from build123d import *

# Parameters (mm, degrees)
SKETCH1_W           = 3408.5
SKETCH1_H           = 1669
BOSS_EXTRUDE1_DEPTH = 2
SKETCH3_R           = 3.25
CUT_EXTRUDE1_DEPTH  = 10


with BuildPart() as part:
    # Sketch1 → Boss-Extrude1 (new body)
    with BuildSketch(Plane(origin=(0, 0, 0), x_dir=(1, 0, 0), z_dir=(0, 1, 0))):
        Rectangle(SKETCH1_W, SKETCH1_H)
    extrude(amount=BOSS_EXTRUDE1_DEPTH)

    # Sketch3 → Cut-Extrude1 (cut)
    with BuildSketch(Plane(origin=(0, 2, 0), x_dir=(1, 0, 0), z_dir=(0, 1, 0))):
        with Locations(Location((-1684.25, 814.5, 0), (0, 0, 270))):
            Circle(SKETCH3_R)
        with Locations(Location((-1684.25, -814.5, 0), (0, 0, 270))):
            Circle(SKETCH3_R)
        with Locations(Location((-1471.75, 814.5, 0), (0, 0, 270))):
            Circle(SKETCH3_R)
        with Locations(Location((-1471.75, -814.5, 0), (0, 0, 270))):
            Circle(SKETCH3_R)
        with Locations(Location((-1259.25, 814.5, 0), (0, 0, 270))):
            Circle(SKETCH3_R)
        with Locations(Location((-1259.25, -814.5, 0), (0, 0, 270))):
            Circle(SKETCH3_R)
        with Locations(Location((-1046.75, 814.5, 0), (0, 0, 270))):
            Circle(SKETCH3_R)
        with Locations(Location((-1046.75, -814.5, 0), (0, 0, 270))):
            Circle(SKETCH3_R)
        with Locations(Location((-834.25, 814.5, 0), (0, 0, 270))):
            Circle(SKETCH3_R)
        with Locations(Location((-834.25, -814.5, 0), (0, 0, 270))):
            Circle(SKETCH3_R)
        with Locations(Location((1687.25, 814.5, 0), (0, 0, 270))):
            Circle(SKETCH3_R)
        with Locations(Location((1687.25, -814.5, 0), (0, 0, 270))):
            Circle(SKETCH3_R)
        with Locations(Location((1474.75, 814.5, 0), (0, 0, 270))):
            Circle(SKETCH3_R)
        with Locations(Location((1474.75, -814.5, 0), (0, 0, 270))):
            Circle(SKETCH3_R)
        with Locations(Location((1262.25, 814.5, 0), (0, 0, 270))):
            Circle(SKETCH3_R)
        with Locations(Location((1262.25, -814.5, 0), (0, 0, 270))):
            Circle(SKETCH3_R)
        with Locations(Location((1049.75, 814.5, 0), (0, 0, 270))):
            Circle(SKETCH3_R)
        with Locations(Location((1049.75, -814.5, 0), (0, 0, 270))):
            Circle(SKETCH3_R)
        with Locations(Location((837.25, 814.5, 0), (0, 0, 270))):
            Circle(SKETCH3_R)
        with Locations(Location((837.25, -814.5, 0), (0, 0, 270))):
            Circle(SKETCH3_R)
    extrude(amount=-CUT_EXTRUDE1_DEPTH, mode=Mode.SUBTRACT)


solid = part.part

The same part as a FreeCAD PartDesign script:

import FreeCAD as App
import Part
import Sketcher

V = App.Vector
Q = App.Units.Quantity


def add_polygon(sketch, points):
    """Adds a closed chain of lines whose ends are joined by coincident constraints."""
    first, n = sketch.GeometryCount, len(points)
    for a, b in zip(points, points[1:] + points[:1]):
        sketch.addGeometry(Part.LineSegment(App.Vector(*a, 0), App.Vector(*b, 0)), False)
    for i in range(n):
        sketch.addConstraint(Sketcher.Constraint("Coincident", first + i, 2, first + (i + 1) % n, 1))

doc = App.newDocument("Part")
params = doc.addObject("Spreadsheet::Sheet", "Params")
for row, (alias, value) in enumerate([
    ("sketch1_height", "1669 mm"),
    ("sketch1_width", "3408.5 mm"),
    ("pad1_length", "2 mm"),
    ("sketch2_diameter", "6.5 mm"),
    ("pocket1_length", "10 mm"),
], start=1):
    params.set(f"A{row}", alias)
    params.set(f"B{row}", "=" + value)
    params.setAlias(f"B{row}", alias)

body = doc.addObject("PartDesign::Body", "Body")

sketch1 = doc.addObject("Sketcher::SketchObject", "Sketch")
body.addObject(sketch1)
sketch1.AttachmentSupport = (doc.XZ_Plane, [""])
sketch1.MapMode = "FlatFace"
add_polygon(sketch1, [(-1704.25, -834.5), (-1704.25, 834.5), (1704.25, 834.5), (1704.25, -834.5)])
sketch1.addConstraint(Sketcher.Constraint("Vertical", 0))
sketch1.addConstraint(Sketcher.Constraint("Horizontal", 1))
sketch1.addConstraint(Sketcher.Constraint("Vertical", 2))
sketch1.addConstraint(Sketcher.Constraint("Horizontal", 3))
sketch1.addConstraint(Sketcher.Constraint("Symmetric", 0, 2, 2, 2, -1, 1))
sketch1.addConstraint(Sketcher.Constraint("DistanceY", 0, 1, 0, 2, Q("1669 mm")))
sketch1.addConstraint(Sketcher.Constraint("DistanceX", 1, 1, 1, 2, Q("3408.5 mm")))
sketch1.setExpression("Constraints[9]", "Params.sketch1_height")
sketch1.setExpression("Constraints[10]", "Params.sketch1_width")
pad1 = doc.addObject("PartDesign::Pad", "Pad")
body.addObject(pad1)
pad1.Profile = sketch1
pad1.setExpression("Length", "Params.pad1_length")
pad1.Reversed = True

sketch2 = doc.addObject("Sketcher::SketchObject", "Sketch001")
body.addObject(sketch2)
sketch2.AttachmentSupport = (doc.XZ_Plane, [""])
sketch2.MapMode = "FlatFace"
sketch2.AttachmentOffset = App.Placement(V(0, 0, -2), App.Rotation())
sketch2.addGeometry(Part.Circle(V(-1684.25, -814.5, 0), V(0, 0, 1), 3.25), False)
sketch2.addGeometry(Part.Circle(V(-1684.25, 814.5, 0), V(0, 0, 1), 3.25), False)
sketch2.addGeometry(Part.Circle(V(-1471.75, -814.5, 0), V(0, 0, 1), 3.25), False)
sketch2.addGeometry(Part.Circle(V(-1471.75, 814.5, 0), V(0, 0, 1), 3.25), False)
sketch2.addGeometry(Part.Circle(V(-1259.25, -814.5, 0), V(0, 0, 1), 3.25), False)
sketch2.addGeometry(Part.Circle(V(-1259.25, 814.5, 0), V(0, 0, 1), 3.25), False)
sketch2.addGeometry(Part.Circle(V(-1046.75, -814.5, 0), V(0, 0, 1), 3.25), False)
sketch2.addGeometry(Part.Circle(V(-1046.75, 814.5, 0), V(0, 0, 1), 3.25), False)
sketch2.addGeometry(Part.Circle(V(-834.25, -814.5, 0), V(0, 0, 1), 3.25), False)
sketch2.addGeometry(Part.Circle(V(-834.25, 814.5, 0), V(0, 0, 1), 3.25), False)
sketch2.addGeometry(Part.Circle(V(1687.25, -814.5, 0), V(0, 0, 1), 3.25), False)
sketch2.addGeometry(Part.Circle(V(1687.25, 814.5, 0), V(0, 0, 1), 3.25), False)
sketch2.addGeometry(Part.Circle(V(1474.75, -814.5, 0), V(0, 0, 1), 3.25), False)
sketch2.addGeometry(Part.Circle(V(1474.75, 814.5, 0), V(0, 0, 1), 3.25), False)
sketch2.addGeometry(Part.Circle(V(1262.25, -814.5, 0), V(0, 0, 1), 3.25), False)
sketch2.addGeometry(Part.Circle(V(1262.25, 814.5, 0), V(0, 0, 1), 3.25), False)
sketch2.addGeometry(Part.Circle(V(1049.75, -814.5, 0), V(0, 0, 1), 3.25), False)
sketch2.addGeometry(Part.Circle(V(1049.75, 814.5, 0), V(0, 0, 1), 3.25), False)
sketch2.addGeometry(Part.Circle(V(837.25, -814.5, 0), V(0, 0, 1), 3.25), False)
sketch2.addGeometry(Part.Circle(V(837.25, 814.5, 0), V(0, 0, 1), 3.25), False)
sketch2.addConstraint(Sketcher.Constraint("Equal", 0, 1))
sketch2.addConstraint(Sketcher.Constraint("Equal", 1, 2))
sketch2.addConstraint(Sketcher.Constraint("Equal", 2, 3))
sketch2.addConstraint(Sketcher.Constraint("Equal", 3, 4))
sketch2.addConstraint(Sketcher.Constraint("Equal", 4, 5))
sketch2.addConstraint(Sketcher.Constraint("Equal", 5, 6))
sketch2.addConstraint(Sketcher.Constraint("Equal", 6, 7))
sketch2.addConstraint(Sketcher.Constraint("Equal", 7, 8))
sketch2.addConstraint(Sketcher.Constraint("Equal", 8, 9))
sketch2.addConstraint(Sketcher.Constraint("Equal", 9, 10))
sketch2.addConstraint(Sketcher.Constraint("Equal", 10, 11))
sketch2.addConstraint(Sketcher.Constraint("Equal", 11, 12))
sketch2.addConstraint(Sketcher.Constraint("Equal", 12, 13))
sketch2.addConstraint(Sketcher.Constraint("Equal", 13, 14))
sketch2.addConstraint(Sketcher.Constraint("Equal", 14, 15))
sketch2.addConstraint(Sketcher.Constraint("Equal", 15, 16))
sketch2.addConstraint(Sketcher.Constraint("Equal", 16, 17))
sketch2.addConstraint(Sketcher.Constraint("Equal", 17, 18))
sketch2.addConstraint(Sketcher.Constraint("Equal", 18, 19))
sketch2.addConstraint(Sketcher.Constraint("Symmetric", 0, 3, 1, 3, -1))
sketch2.addConstraint(Sketcher.Constraint("Symmetric", 2, 3, 3, 3, -1))
sketch2.addConstraint(Sketcher.Constraint("Symmetric", 4, 3, 5, 3, -1))
sketch2.addConstraint(Sketcher.Constraint("Symmetric", 6, 3, 7, 3, -1))
sketch2.addConstraint(Sketcher.Constraint("Symmetric", 8, 3, 9, 3, -1))
sketch2.addConstraint(Sketcher.Constraint("Symmetric", 10, 3, 11, 3, -1))
sketch2.addConstraint(Sketcher.Constraint("Symmetric", 12, 3, 13, 3, -1))
sketch2.addConstraint(Sketcher.Constraint("Symmetric", 14, 3, 15, 3, -1))
sketch2.addConstraint(Sketcher.Constraint("Symmetric", 16, 3, 17, 3, -1))
sketch2.addConstraint(Sketcher.Constraint("Symmetric", 18, 3, 19, 3, -1))
sketch2.addConstraint(Sketcher.Constraint("Horizontal", 0, 3, 2, 3))
sketch2.addConstraint(Sketcher.Constraint("Horizontal", 2, 3, 4, 3))
sketch2.addConstraint(Sketcher.Constraint("Horizontal", 4, 3, 6, 3))
sketch2.addConstraint(Sketcher.Constraint("Horizontal", 6, 3, 8, 3))
sketch2.addConstraint(Sketcher.Constraint("Horizontal", 8, 3, 10, 3))
sketch2.addConstraint(Sketcher.Constraint("Horizontal", 10, 3, 12, 3))
sketch2.addConstraint(Sketcher.Constraint("Horizontal", 12, 3, 14, 3))
sketch2.addConstraint(Sketcher.Constraint("Horizontal", 14, 3, 16, 3))
sketch2.addConstraint(Sketcher.Constraint("Horizontal", 16, 3, 18, 3))
sketch2.addConstraint(Sketcher.Constraint("Diameter", 0, Q("6.5 mm")))
sketch2.addConstraint(Sketcher.Constraint("DistanceY", 0, 3, 1, 3, Q("1629 mm")))
sketch2.addConstraint(Sketcher.Constraint("DistanceX", 0, 3, 4, 3, Q("425 mm")))
sketch2.addConstraint(Sketcher.Constraint("DistanceX", 2, 3, 6, 3, Q("425 mm")))
sketch2.addConstraint(Sketcher.Constraint("DistanceX", 4, 3, 8, 3, Q("425 mm")))
sketch2.addConstraint(Sketcher.Constraint("DistanceX", 6, 3, 10, 3, Q("2734 mm")))
sketch2.addConstraint(Sketcher.Constraint("DistanceX", 8, 3, 12, 3, Q("2309 mm")))
sketch2.addConstraint(Sketcher.Constraint("DistanceX", 14, 3, 10, 3, Q("425 mm")))
sketch2.addConstraint(Sketcher.Constraint("DistanceX", 16, 3, 12, 3, Q("425 mm")))
sketch2.addConstraint(Sketcher.Constraint("DistanceX", 18, 3, 14, 3, Q("425 mm")))
sketch2.addConstraint(Sketcher.Constraint("DistanceX", 0, 3, 2, 3, Q("212.5 mm")))
sketch2.addConstraint(Sketcher.Constraint("DistanceX", 0, 3, -1, 1, Q("1684.25 mm")))
sketch2.setExpression("Constraints[38]", "Params.sketch2_diameter")
pocket1 = doc.addObject("PartDesign::Pocket", "Pocket")
body.addObject(pocket1)
pocket1.Profile = sketch2
pocket1.setExpression("Length", "Params.pocket1_length")
pocket1.Reversed = True

doc.recompute()
